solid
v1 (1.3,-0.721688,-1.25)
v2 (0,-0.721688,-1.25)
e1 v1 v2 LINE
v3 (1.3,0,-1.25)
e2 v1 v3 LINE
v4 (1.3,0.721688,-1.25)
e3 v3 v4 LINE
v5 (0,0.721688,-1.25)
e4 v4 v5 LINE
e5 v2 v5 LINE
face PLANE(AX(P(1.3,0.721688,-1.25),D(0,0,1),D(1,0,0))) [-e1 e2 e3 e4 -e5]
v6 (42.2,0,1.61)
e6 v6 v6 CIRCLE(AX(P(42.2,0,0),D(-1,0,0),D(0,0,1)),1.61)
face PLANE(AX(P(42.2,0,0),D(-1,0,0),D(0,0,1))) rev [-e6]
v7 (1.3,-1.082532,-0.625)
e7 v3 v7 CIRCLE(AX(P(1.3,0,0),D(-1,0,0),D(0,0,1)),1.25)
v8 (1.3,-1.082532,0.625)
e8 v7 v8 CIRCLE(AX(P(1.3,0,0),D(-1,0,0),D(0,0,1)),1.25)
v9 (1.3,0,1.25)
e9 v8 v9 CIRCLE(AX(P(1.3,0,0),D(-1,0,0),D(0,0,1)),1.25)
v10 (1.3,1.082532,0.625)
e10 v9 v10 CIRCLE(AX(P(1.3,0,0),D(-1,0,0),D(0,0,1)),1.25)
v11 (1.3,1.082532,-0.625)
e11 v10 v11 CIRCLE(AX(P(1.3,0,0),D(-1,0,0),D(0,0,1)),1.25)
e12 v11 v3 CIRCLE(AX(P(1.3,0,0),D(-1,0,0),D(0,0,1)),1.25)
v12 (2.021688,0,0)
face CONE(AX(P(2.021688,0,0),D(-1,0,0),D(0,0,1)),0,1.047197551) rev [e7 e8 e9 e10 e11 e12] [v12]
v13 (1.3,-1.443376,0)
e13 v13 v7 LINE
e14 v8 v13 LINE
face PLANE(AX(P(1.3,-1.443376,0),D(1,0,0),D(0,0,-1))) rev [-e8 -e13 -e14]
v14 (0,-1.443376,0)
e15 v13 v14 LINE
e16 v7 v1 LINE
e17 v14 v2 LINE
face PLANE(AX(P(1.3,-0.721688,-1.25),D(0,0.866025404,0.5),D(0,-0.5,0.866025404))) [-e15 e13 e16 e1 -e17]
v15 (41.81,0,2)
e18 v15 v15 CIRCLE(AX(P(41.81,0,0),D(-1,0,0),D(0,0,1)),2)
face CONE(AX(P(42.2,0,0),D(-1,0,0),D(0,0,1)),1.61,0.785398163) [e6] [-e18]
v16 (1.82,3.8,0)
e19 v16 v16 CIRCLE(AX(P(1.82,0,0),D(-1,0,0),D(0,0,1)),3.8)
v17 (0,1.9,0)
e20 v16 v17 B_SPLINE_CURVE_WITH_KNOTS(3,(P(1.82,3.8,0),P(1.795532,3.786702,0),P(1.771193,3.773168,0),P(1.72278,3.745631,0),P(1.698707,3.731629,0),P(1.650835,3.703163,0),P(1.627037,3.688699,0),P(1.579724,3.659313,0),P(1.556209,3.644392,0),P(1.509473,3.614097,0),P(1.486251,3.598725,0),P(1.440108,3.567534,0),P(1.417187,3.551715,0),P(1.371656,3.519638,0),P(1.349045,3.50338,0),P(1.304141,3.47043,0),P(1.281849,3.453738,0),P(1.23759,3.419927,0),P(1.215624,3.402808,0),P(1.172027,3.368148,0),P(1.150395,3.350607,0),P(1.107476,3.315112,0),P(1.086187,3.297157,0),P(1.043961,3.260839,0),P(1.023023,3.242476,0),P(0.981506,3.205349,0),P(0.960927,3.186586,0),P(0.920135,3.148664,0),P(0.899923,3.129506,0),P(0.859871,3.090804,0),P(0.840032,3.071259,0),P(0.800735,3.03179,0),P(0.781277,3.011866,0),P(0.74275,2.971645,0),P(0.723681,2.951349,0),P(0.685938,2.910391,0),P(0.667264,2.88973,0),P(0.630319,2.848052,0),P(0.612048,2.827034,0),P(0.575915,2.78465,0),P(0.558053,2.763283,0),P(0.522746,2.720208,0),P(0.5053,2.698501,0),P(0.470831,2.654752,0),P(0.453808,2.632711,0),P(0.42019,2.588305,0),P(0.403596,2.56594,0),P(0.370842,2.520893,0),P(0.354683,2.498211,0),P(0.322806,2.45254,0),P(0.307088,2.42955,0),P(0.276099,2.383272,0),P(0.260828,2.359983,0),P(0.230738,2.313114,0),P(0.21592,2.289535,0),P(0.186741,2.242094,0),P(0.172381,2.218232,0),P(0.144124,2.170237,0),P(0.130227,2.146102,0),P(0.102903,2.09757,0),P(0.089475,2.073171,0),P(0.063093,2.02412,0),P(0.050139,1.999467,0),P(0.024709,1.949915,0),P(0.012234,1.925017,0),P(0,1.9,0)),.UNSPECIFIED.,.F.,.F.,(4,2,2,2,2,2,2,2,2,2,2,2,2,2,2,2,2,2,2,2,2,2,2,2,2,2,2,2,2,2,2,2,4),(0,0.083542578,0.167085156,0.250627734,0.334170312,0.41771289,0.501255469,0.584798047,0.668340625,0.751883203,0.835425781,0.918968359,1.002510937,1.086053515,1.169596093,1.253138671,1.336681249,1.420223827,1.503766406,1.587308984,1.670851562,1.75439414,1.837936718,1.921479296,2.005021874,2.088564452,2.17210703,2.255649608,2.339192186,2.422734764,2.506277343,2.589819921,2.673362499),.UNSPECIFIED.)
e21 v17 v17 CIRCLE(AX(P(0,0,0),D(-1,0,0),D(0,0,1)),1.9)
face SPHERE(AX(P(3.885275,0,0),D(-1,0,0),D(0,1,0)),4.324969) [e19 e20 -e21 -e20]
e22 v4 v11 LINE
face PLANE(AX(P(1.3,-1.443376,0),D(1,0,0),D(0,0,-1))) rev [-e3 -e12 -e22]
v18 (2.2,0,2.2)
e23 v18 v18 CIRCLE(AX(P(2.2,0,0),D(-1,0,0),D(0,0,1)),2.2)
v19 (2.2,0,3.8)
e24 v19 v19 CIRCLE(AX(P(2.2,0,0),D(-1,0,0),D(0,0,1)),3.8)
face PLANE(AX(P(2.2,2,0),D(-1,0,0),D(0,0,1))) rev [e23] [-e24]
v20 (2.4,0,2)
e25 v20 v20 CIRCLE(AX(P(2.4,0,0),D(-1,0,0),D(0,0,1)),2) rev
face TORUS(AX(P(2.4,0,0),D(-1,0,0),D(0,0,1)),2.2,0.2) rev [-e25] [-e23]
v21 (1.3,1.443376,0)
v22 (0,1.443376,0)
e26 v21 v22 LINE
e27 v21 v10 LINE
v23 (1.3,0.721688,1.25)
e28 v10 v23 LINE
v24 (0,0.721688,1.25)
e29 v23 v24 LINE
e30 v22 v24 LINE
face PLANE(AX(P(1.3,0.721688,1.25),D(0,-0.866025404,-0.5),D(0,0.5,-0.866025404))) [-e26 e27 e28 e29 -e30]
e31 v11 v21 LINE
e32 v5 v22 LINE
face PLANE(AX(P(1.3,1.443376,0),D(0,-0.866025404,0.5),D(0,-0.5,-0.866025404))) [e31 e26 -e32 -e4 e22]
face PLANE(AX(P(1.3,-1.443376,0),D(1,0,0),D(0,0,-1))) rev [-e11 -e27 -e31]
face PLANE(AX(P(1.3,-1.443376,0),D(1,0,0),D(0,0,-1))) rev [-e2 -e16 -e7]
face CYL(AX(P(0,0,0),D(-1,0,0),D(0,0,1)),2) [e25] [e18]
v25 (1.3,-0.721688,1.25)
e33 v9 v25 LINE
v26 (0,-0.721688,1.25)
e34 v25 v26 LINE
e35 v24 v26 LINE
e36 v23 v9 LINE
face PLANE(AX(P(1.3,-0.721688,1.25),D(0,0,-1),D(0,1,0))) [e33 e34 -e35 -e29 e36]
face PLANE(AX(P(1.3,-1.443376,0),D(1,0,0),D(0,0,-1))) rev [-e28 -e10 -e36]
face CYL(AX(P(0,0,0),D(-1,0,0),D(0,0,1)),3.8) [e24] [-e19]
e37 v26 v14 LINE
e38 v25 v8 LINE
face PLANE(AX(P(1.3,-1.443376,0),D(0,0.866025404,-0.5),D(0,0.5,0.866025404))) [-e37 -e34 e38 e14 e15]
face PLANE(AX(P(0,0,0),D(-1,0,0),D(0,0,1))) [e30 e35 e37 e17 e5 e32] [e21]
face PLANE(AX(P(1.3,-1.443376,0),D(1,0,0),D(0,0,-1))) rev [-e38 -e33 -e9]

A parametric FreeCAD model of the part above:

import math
import FreeCAD as App
import Part
import Sketcher
Q = App.Units.Quantity


def edges_at(feature, points):
    """Names of the edges that pass closest to the given points."""
    edges = feature.Shape.Edges
    near = lambda p: min(range(len(edges)), key=lambda i: edges[i].distToShape(Part.Vertex(*p))[0])
    return sorted({f"Edge{near(p) + 1}" for p in points})

doc = App.newDocument("Part")
params = doc.addObject("Spreadsheet::Sheet", "Params")
for row, (alias, value) in enumerate([
    ("sketch1_width", "42.2 mm"),
    ("sketch1_height", "1.8 mm"),
    ("sketch1_height2", "1.9 mm"),
    ("sketch1_width2", "39.61 mm"),
    ("sketch1_width3", "0.38 mm"),
    ("revolution_angle", "360 deg"),
    ("fillet_radius", "0.2 mm"),
    ("sketch2_width", "1.3 mm"),
    ("sketch2_height", "1.25 mm"),
    ("groove_angle", "360 deg"),
    ("pocket1_length", "1.3 mm"),
], start=1):
    params.set(f"A{row}", alias)
    params.set(f"B{row}", "=" + value)
    params.setAlias(f"B{row}", alias)

body = doc.addObject("PartDesign::Body", "Body")

sketch1 = body.newObject("Sketcher::SketchObject", "Sketch")
sketch1.AttachmentSupport = (doc.getObject("XY_Plane"), [""])
sketch1.MapMode = "FlatFace"
sketch1.addGeometry(Part.LineSegment(App.Vector(42.2, 0, 0), App.Vector(42.2, 1.61, 0)), False)
sketch1.addGeometry(Part.LineSegment(App.Vector(42.2, 1.61, 0), App.Vector(41.81, 2, 0)), False)
sketch1.addGeometry(Part.LineSegment(App.Vector(41.81, 2, 0), App.Vector(2.2, 2, 0)), False)
sketch1.addGeometry(Part.LineSegment(App.Vector(2.2, 2, 0), App.Vector(2.2, 3.8, 0)), False)
sketch1.addGeometry(Part.LineSegment(App.Vector(2.2, 3.8, 0), App.Vector(1.82, 3.8, 0)), False)
sketch1.addGeometry(Part.ArcOfCircle(Part.Circle(App.Vector(3.89, 0, 0), App.Vector(0, 0, 1), 4.32), math.radians(119), math.radians(154)), False)
sketch1.addGeometry(Part.LineSegment(App.Vector(0, 1.9, 0), App.Vector(0, 0, 0)), False)
sketch1.addGeometry(Part.LineSegment(App.Vector(0, 0, 0), App.Vector(42.2, 0, 0)), False)
sketch1.addConstraint(Sketcher.Constraint("Coincident", 0, 2, 1, 1))
sketch1.addConstraint(Sketcher.Constraint("Coincident", 1, 2, 2, 1))
sketch1.addConstraint(Sketcher.Constraint("Coincident", 2, 2, 3, 1))
sketch1.addConstraint(Sketcher.Constraint("Coincident", 3, 2, 4, 1))
sketch1.addConstraint(Sketcher.Constraint("Coincident", 4, 2, 5, 1))
sketch1.addConstraint(Sketcher.Constraint("Coincident", 5, 2, 6, 1))
sketch1.addConstraint(Sketcher.Constraint("Coincident", 6, 2, 7, 1))
sketch1.addConstraint(Sketcher.Constraint("Coincident", 7, 2, 0, 1))
sketch1.addConstraint(Sketcher.Constraint("Vertical", 0))
sketch1.addConstraint(Sketcher.Constraint("Horizontal", 2))
sketch1.addConstraint(Sketcher.Constraint("Vertical", 3))
sketch1.addConstraint(Sketcher.Constraint("Horizontal", 4))
sketch1.addConstraint(Sketcher.Constraint("Vertical", 6))
sketch1.addConstraint(Sketcher.Constraint("Horizontal", 7))
sketch1.addConstraint(Sketcher.Constraint("Coincident", 6, 2, -1, 1))
sketch1.addConstraint(Sketcher.Constraint("PointOnObject", 5, 3, -1))
sketch1.addConstraint(Sketcher.Constraint("Angle", 1, Q("135 deg")))
sketch1.addConstraint(Sketcher.Constraint("DistanceX", 7, 1, 7, 2, Q("42.2 mm")))
sketch1.addConstraint(Sketcher.Constraint("DistanceY", 3, 1, 3, 2, Q("1.8 mm")))
sketch1.addConstraint(Sketcher.Constraint("DistanceY", 6, 2, 6, 1, Q("1.9 mm")))
sketch1.addConstraint(Sketcher.Constraint("DistanceY", -1, 1, 1, 2, Q("2 mm")))
sketch1.addConstraint(Sketcher.Constraint("DistanceX", 2, 2, 0, 2, Q("40 mm")))
sketch1.addConstraint(Sketcher.Constraint("DistanceX", 2, 2, 2, 1, Q("39.61 mm")))
sketch1.addConstraint(Sketcher.Constraint("DistanceX", 4, 2, 4, 1, Q("0.38 mm")))
sketch1.setExpression("Constraints[17]", "Params.sketch1_width")
sketch1.setExpression("Constraints[18]", "Params.sketch1_height")
sketch1.setExpression("Constraints[19]", "Params.sketch1_height2")
sketch1.setExpression("Constraints[22]", "Params.sketch1_width2")
sketch1.setExpression("Constraints[23]", "Params.sketch1_width3")
revolution = body.newObject("PartDesign::Revolution", "Revolution")
revolution.Profile = sketch1
revolution.ReferenceAxis = (sketch1, ["H_Axis"])
revolution.setExpression("Angle", "Params.revolution_angle")
doc.recompute()

fillet = body.newObject("PartDesign::Fillet", "Fillet")
fillet.Base = (revolution, edges_at(revolution, [(2.2, 0, -2)]))
fillet.setExpression("Radius", "Params.fillet_radius")

sketch2 = body.newObject("Sketcher::SketchObject", "Sketch001")
sketch2.AttachmentSupport = (doc.getObject("XY_Plane"), [""])
sketch2.MapMode = "FlatFace"
sketch2.addGeometry(Part.LineSegment(App.Vector(1.3, 1.2, 0), App.Vector(0, 1.2, 0)), False)
sketch2.addGeometry(Part.LineSegment(App.Vector(0, 1.2, 0), App.Vector(0, 0, 0)), False)
sketch2.addGeometry(Part.LineSegment(App.Vector(0, 0, 0), App.Vector(2, 0, 0)), False)
sketch2.addGeometry(Part.LineSegment(App.Vector(2, 0, 0), App.Vector(1.3, 1.2, 0)), False)
sketch2.addConstraint(Sketcher.Constraint("Coincident", 0, 2, 1, 1))
sketch2.addConstraint(Sketcher.Constraint("Coincident", 1, 2, 2, 1))
sketch2.addConstraint(Sketcher.Constraint("Coincident", 2, 2, 3, 1))
sketch2.addConstraint(Sketcher.Constraint("Coincident", 3, 2, 0, 1))
sketch2.addConstraint(Sketcher.Constraint("Horizontal", 0))
sketch2.addConstraint(Sketcher.Constraint("Vertical", 1))
sketch2.addConstraint(Sketcher.Constraint("Horizontal", 2))
sketch2.addConstraint(Sketcher.Constraint("Coincident", 1, 2, -1, 1))
sketch2.addConstraint(Sketcher.Constraint("Angle", 3, Q("120 deg")))
sketch2.addConstraint(Sketcher.Constraint("DistanceX", 0, 2, 0, 1, Q("1.3 mm")))
sketch2.addConstraint(Sketcher.Constraint("DistanceY", 1, 2, 1, 1, Q("1.25 mm")))
sketch2.setExpression("Constraints[9]", "Params.sketch2_width")
sketch2.setExpression("Constraints[10]", "Params.sketch2_height")
groove = body.newObject("PartDesign::Groove", "Groove")
groove.Profile = sketch2
groove.ReferenceAxis = (sketch2, ["H_Axis"])
groove.setExpression("Angle", "Params.groove_angle")

sketch3 = body.newObject("Sketcher::SketchObject", "Sketch002")
sketch3.AttachmentSupport = (doc.getObject("YZ_Plane"), [""])
sketch3.MapMode = "FlatFace"
sketch3.addGeometry(Part.LineSegment(App.Vector(0.7, 1.2, 0), App.Vector(-0.7, 1.2, 0)), False)
sketch3.addGeometry(Part.LineSegment(App.Vector(-0.7, 1.2, 0), App.Vector(-1.4, 0, 0)), False)
sketch3.addGeometry(Part.LineSegment(App.Vector(-1.4, 0, 0), App.Vector(-0.7, -1.2, 0)), False)
sketch3.addGeometry(Part.LineSegment(App.Vector(-0.7, -1.2, 0), App.Vector(0.7, -1.2, 0)), False)
sketch3.addGeometry(Part.LineSegment(App.Vector(0.7, -1.2, 0), App.Vector(1.4, 0, 0)), False)
sketch3.addGeometry(Part.LineSegment(App.Vector(1.4, 0, 0), App.Vector(0.7, 1.2, 0)), False)
sketch3.addConstraint(Sketcher.Constraint("Coincident", 0, 2, 1, 1))
sketch3.addConstraint(Sketcher.Constraint("Coincident", 1, 2, 2, 1))
sketch3.addConstraint(Sketcher.Constraint("Coincident", 2, 2, 3, 1))
sketch3.addConstraint(Sketcher.Constraint("Coincident", 3, 2, 4, 1))
sketch3.addConstraint(Sketcher.Constraint("Coincident", 4, 2, 5, 1))
sketch3.addConstraint(Sketcher.Constraint("Coincident", 5, 2, 0, 1))
sketch3.addConstraint(Sketcher.Constraint("Horizontal", 0))
sketch3.addConstraint(Sketcher.Constraint("Horizontal", 3))
sketch3.addConstraint(Sketcher.Constraint("Symmetric", 0, 2, 3, 2, -1, 1))
sketch3.addConstraint(Sketcher.Constraint("Symmetric", 1, 2, 4, 2, -1, 1))
sketch3.addConstraint(Sketcher.Constraint("PointOnObject", 1, 2, -1))
sketch3.addConstraint(Sketcher.Constraint("Parallel", 2, 5))
sketch3.addConstraint(Sketcher.Constraint("Vertical", 0, 2, 2, 2))
sketch3.addConstraint(Sketcher.Constraint("Angle", 1, Q("-120 deg")))
sketch3.addConstraint(Sketcher.Constraint("DistanceY", 2, 2, 0, 2, Q("2.5 mm")))
sketch3.addConstraint(Sketcher.Constraint("DistanceX", 0, 2, 0, 1, Q("1.443376 mm")))
pocket1 = body.newObject("PartDesign::Pocket", "Pocket")
pocket1.Profile = sketch3
pocket1.setExpression("Length", "Params.pocket1_length")
pocket1.Reversed = True

doc.recompute()
